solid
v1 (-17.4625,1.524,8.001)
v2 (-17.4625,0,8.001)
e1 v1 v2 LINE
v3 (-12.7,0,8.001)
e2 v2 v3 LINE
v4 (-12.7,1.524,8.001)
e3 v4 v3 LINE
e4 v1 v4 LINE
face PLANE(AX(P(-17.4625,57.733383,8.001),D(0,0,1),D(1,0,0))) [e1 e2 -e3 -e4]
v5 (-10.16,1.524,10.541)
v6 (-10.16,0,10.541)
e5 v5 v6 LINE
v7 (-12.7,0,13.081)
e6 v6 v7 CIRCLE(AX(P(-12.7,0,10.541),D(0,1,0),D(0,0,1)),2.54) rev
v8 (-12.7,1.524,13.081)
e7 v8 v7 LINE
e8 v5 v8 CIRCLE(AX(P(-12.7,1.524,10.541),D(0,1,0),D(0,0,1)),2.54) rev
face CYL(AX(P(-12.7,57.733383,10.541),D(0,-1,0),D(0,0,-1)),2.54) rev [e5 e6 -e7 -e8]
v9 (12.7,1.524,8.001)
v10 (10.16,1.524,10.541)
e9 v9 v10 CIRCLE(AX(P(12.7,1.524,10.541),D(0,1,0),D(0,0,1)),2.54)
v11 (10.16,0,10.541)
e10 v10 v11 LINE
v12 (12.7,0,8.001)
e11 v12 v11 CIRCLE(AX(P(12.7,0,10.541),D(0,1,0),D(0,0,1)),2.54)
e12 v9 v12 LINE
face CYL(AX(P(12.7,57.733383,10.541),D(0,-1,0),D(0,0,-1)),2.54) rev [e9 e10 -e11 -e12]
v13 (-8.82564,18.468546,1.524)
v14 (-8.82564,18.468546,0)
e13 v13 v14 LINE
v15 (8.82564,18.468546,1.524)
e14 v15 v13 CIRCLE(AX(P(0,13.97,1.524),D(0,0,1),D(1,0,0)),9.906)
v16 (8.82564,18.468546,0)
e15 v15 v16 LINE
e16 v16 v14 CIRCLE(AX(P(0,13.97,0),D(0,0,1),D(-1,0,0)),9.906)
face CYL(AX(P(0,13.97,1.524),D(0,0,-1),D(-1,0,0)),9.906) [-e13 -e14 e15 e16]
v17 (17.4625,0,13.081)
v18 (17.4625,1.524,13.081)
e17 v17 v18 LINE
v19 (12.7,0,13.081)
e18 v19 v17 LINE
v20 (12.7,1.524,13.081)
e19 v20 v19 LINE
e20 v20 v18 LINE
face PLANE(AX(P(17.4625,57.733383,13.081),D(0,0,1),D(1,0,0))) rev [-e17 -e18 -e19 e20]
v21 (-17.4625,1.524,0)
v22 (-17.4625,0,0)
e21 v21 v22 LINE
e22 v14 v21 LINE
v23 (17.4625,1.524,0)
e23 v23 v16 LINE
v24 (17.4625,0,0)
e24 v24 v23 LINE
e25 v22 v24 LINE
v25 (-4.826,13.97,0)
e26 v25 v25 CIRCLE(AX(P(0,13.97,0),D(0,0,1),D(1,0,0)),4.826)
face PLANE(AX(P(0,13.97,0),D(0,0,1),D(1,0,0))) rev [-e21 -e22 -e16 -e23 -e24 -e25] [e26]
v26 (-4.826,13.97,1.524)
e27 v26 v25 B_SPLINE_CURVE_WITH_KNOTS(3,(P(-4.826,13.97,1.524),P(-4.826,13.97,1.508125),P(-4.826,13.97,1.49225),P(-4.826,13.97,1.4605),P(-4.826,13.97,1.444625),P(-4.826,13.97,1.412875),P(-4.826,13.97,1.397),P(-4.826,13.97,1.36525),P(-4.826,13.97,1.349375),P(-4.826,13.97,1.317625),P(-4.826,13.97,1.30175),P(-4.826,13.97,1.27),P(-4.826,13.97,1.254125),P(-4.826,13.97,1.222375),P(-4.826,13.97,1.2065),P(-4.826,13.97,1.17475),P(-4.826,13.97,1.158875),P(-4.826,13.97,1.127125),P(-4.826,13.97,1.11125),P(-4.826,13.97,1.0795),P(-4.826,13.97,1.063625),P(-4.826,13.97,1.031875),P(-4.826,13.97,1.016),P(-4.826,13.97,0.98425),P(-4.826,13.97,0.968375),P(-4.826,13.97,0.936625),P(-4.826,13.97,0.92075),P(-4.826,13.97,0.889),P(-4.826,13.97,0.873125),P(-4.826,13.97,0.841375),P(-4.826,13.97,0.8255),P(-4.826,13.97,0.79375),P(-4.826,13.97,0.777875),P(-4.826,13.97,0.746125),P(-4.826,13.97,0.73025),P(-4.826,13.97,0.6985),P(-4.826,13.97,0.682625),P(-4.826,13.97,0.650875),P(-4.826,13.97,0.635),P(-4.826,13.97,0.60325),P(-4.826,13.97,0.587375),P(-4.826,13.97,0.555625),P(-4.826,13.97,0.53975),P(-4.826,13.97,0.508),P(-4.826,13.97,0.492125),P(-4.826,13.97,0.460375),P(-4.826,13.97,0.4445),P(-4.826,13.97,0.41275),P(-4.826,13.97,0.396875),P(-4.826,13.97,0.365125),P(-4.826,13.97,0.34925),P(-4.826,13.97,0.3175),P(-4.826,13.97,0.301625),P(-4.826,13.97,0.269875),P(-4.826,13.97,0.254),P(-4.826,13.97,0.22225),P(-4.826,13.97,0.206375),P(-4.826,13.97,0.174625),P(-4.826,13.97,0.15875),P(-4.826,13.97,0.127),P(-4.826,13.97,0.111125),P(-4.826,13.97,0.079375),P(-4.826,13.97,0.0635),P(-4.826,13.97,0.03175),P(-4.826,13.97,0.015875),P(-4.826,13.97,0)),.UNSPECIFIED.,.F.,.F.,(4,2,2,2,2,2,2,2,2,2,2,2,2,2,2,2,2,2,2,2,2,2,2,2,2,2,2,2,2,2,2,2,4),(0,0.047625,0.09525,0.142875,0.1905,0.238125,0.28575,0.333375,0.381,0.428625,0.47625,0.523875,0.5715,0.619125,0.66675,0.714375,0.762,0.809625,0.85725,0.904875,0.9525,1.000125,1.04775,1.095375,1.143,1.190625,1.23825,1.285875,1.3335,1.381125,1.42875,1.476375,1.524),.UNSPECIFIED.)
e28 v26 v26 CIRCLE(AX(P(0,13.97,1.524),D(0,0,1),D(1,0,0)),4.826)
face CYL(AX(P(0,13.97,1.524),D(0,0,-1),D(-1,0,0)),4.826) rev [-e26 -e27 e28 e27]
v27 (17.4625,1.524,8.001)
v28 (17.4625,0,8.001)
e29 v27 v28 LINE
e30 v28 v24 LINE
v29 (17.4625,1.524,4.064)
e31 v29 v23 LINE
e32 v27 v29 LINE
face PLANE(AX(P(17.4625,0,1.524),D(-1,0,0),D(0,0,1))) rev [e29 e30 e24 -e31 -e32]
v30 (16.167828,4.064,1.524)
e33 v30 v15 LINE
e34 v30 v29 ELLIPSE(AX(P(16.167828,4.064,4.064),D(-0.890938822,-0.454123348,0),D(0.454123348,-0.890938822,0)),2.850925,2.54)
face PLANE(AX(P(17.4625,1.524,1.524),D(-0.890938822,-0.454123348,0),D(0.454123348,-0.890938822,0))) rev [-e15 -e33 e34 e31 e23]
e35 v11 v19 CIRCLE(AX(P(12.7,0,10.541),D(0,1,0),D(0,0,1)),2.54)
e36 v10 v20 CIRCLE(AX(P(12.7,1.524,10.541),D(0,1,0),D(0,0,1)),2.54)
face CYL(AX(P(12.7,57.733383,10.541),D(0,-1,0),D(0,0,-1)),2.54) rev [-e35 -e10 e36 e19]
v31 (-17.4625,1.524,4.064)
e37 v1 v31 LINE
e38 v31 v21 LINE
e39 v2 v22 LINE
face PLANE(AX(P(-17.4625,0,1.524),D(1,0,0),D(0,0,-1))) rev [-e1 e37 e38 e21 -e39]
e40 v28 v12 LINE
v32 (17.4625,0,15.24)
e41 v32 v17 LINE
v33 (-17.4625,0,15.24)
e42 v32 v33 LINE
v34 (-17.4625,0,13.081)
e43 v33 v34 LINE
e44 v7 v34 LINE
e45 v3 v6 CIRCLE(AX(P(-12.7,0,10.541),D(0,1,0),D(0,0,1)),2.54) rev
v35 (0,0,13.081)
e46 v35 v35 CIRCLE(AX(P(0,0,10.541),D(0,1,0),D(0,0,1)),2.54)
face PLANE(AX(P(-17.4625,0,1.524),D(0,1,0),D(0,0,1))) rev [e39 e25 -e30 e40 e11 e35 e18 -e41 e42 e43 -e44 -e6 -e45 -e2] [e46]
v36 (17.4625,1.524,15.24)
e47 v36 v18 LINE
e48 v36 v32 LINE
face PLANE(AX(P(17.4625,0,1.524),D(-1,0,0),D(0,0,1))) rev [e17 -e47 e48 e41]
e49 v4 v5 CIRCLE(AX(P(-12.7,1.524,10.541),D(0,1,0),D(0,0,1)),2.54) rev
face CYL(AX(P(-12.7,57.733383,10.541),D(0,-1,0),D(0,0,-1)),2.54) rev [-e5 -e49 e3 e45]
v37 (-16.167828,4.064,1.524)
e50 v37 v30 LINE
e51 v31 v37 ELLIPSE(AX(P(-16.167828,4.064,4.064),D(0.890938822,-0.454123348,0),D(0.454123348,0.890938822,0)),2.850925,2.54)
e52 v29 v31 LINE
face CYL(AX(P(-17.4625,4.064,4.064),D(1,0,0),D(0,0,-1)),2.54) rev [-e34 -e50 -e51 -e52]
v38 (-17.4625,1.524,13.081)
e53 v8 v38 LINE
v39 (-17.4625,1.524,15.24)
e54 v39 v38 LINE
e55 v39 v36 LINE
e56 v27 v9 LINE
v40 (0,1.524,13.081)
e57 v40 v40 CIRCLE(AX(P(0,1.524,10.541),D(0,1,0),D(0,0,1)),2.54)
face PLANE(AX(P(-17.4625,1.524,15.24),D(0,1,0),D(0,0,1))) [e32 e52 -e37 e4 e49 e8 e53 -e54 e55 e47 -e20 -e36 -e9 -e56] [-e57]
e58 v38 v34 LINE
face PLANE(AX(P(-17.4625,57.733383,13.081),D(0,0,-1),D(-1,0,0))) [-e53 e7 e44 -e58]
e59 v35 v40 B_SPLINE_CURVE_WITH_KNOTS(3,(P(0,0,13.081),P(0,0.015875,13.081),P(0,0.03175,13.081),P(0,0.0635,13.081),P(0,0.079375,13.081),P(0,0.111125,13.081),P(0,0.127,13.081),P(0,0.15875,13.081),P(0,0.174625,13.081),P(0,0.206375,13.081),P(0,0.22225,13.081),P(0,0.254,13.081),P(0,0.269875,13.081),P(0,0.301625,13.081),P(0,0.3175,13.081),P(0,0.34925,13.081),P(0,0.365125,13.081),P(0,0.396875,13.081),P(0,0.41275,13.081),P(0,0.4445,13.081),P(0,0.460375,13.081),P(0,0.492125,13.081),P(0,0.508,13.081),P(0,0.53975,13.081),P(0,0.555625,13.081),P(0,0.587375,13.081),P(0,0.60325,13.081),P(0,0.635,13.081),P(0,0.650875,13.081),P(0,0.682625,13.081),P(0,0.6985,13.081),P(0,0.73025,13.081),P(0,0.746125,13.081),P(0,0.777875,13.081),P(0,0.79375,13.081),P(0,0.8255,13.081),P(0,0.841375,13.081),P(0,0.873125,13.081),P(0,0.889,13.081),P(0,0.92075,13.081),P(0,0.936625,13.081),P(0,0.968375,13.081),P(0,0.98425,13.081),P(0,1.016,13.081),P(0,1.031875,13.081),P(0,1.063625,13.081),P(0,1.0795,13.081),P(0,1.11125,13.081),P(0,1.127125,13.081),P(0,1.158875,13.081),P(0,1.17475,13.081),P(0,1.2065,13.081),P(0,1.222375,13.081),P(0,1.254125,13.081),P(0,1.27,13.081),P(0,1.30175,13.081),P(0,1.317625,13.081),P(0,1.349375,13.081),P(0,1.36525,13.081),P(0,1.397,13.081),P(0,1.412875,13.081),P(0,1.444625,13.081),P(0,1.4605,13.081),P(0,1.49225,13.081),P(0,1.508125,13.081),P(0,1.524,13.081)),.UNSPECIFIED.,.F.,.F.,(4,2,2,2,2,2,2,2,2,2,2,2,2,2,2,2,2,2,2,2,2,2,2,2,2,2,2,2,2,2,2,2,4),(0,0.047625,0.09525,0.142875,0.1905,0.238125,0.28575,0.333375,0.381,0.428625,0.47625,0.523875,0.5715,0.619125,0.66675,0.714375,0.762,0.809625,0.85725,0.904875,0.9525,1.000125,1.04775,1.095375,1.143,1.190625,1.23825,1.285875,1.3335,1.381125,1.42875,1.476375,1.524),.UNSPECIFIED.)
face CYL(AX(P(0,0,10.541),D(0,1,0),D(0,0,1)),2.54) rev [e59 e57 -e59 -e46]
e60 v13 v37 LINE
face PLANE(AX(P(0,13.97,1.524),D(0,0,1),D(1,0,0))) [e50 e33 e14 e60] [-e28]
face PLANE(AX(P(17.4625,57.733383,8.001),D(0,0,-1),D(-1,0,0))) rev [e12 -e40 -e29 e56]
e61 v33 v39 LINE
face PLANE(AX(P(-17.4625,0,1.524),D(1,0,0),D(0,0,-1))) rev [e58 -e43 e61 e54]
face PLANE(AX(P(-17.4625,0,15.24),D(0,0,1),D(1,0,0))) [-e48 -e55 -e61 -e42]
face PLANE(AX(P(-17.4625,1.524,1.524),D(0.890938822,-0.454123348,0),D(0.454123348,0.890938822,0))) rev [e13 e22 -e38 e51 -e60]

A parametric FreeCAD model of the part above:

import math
import FreeCAD as App
import Part
import Sketcher
from FreeCAD import Vector
Q = App.Units.Quantity


def edges_at(feature, points):
    """Names of the edges that pass closest to the given points."""
    edges = feature.Shape.Edges
    near = lambda p: min(range(len(edges)), key=lambda i: edges[i].distToShape(Part.Vertex(*p))[0])
    return sorted({f"Edge{near(p) + 1}" for p in points})

doc = App.newDocument("Part")
body = doc.addObject("PartDesign::Body", "Body")

sketch1 = doc.addObject("Sketcher::SketchObject", "Sketch")
body.addObject(sketch1)
sketch1.AttachmentSupport = (doc.XY_Plane, [""])
sketch1.MapMode = "FlatFace"
sketch1.addGeometry([
    Part.LineSegment(Vector(-17.5, 0, 0), Vector(17.5, 0, 0)),
    Part.LineSegment(Vector(17.5, 0, 0), Vector(17.5, 1.5, 0)),
    Part.LineSegment(Vector(17.5, 1.5, 0), Vector(8.8, 18.5, 0)),
    Part.ArcOfCircle(Part.Circle(Vector(0, 14, 0), Vector(0, 0, 1), 9.9), math.radians(27), math.radians(90)),
    Part.ArcOfCircle(Part.Circle(Vector(0, 14, 0), Vector(0, 0, 1), 9.9), math.radians(90), math.radians(153)),
    Part.LineSegment(Vector(-8.8, 18.5, 0), Vector(-17.5, 1.5, 0)),
    Part.LineSegment(Vector(-17.5, 1.5, 0), Vector(-17.5, 0, 0)),
    Part.Circle(Vector(0, 14, 0), Vector(0, 0, 1), 4.8),
], False)
sketch1.addConstraint([
    Sketcher.Constraint("Coincident", 0, 2, 1, 1),
    Sketcher.Constraint("Coincident", 1, 2, 2, 1),
    Sketcher.Constraint("Tangent", 2, 2, 3, 1),
    Sketcher.Constraint("Tangent", 3, 2, 4, 1),
    Sketcher.Constraint("Tangent", 4, 2, 5, 1),
    Sketcher.Constraint("Coincident", 5, 2, 6, 1),
    Sketcher.Constraint("Coincident", 6, 2, 0, 1),
    Sketcher.Constraint("Horizontal", 0),
    Sketcher.Constraint("Vertical", 1),
    Sketcher.Constraint("Vertical", 6),
    Sketcher.Constraint("Coincident", 7, 3, 3, 3),
    Sketcher.Constraint("Equal", 3, 4),
    Sketcher.Constraint("Symmetric", 0, 2, 6, 2, -1, 1),
    Sketcher.Constraint("Symmetric", 2, 2, 4, 2, -2),
    Sketcher.Constraint("PointOnObject", 3, 2, -2),
    Sketcher.Constraint("Diameter", 7, Q("0.38 in")),
    Sketcher.Constraint("Radius", 3, Q("0.39 in")),
    Sketcher.Constraint("DistanceY", 1, 1, 1, 2, Q("0.06 in")),
    Sketcher.Constraint("DistanceX", 0, 1, 0, 2, Q("1.375 in")),
    Sketcher.Constraint("DistanceY", -1, 1, 3, 3, Q("0.55 in")),
])
pad1 = doc.addObject("PartDesign::Pad", "Pad")
body.addObject(pad1)
pad1.Profile = sketch1
pad1.Length = Q("0.06 in")

sketch2 = doc.addObject("Sketcher::SketchObject", "Sketch001")
body.addObject(sketch2)
sketch2.AttachmentSupport = (doc.XY_Plane, [""])
sketch2.MapMode = "FlatFace"
sketch2.addGeometry([
    Part.LineSegment(Vector(17.5, 1.5, 0), Vector(17.5, 0, 0)),
    Part.LineSegment(Vector(17.5, 0, 0), Vector(-17.5, 0, 0)),
    Part.LineSegment(Vector(-17.5, 0, 0), Vector(-17.5, 1.5, 0)),
    Part.LineSegment(Vector(-17.5, 1.5, 0), Vector(17.5, 1.5, 0)),
], False)
sketch2.addConstraint([
    Sketcher.Constraint("Coincident", 0, 2, 1, 1),
    Sketcher.Constraint("Coincident", 1, 2, 2, 1),
    Sketcher.Constraint("Coincident", 2, 2, 3, 1),
    Sketcher.Constraint("Coincident", 3, 2, 0, 1),
    Sketcher.Constraint("Vertical", 0),
    Sketcher.Constraint("Horizontal", 1),
    Sketcher.Constraint("Vertical", 2),
    Sketcher.Constraint("Horizontal", 3),
    Sketcher.Constraint("Symmetric", 0, 2, 1, 2, -1, 1),
    Sketcher.Constraint("DistanceY", 0, 2, 0, 1, Q("0.06 in")),
    Sketcher.Constraint("DistanceX", 1, 2, 1, 1, Q("1.375 in")),
])
pad2 = doc.addObject("PartDesign::Pad", "Pad001")
body.addObject(pad2)
pad2.Profile = sketch2
pad2.Length = Q("0.6 in")

sketch3 = doc.addObject("Sketcher::SketchObject", "Sketch002")
body.addObject(sketch3)
sketch3.AttachmentSupport = (doc.XZ_Plane, [""])
sketch3.MapMode = "FlatFace"
sketch3.AttachmentOffset = App.Placement(Vector(0, 0, -0.06 * 25.4), App.Rotation())
sketch3.addGeometry(Part.Circle(Vector(0, 10.5, 0), Vector(0, 0, 1), 2.5), False)
sketch3.addConstraint([
    Sketcher.Constraint("PointOnObject", 0, 3, -2),
    Sketcher.Constraint("Diameter", 0, Q("0.2 in")),
    Sketcher.Constraint("DistanceY", -1, 1, 0, 3, Q("0.415 in")),
])
pocket1 = doc.addObject("PartDesign::Pocket", "Pocket")
body.addObject(pocket1)
pocket1.Profile = sketch3
pocket1.Type = "ThroughAll"
pocket1.Reversed = True

sketch4 = doc.addObject("Sketcher::SketchObject", "Sketch003")
body.addObject(sketch4)
sketch4.AttachmentSupport = (doc.XZ_Plane, [""])
sketch4.MapMode = "FlatFace"
sketch4.AttachmentOffset = App.Placement(Vector(0, 0, -0.06 * 25.4), App.Rotation())
sketch4.addGeometry([
    Part.LineSegment(Vector(-12.7, 8, 0), Vector(-17.5, 8, 0)),
    Part.LineSegment(Vector(-17.5, 8, 0), Vector(-17.5, 13.1, 0)),
    Part.LineSegment(Vector(-17.5, 13.1, 0), Vector(-12.7, 13.1, 0)),
    Part.ArcOfCircle(Part.Circle(Vector(-12.7, 10.5, 0), Vector(0, 0, 1), 2.5), math.radians(0), math.radians(90)),
    Part.ArcOfCircle(Part.Circle(Vector(-12.7, 10.5, 0), Vector(0, 0, 1), 2.5), math.radians(-90), math.radians(0)),
], False)
sketch4.addConstraint([
    Sketcher.Constraint("Coincident", 0, 2, 1, 1),
    Sketcher.Constraint("Coincident", 1, 2, 2, 1),
    Sketcher.Constraint("Tangent", 2, 2, 3, 2),
    Sketcher.Constraint("Tangent", 3, 1, 4, 2),
    Sketcher.Constraint("Tangent", 4, 1, 0, 1),
    Sketcher.Constraint("Horizontal", 0),
    Sketcher.Constraint("Vertical", 1),
    Sketcher.Constraint("Horizontal", 2),
    Sketcher.Constraint("Equal", 3, 4),
    Sketcher.Constraint("Horizontal", 4, 3, 3, 1),
    Sketcher.Constraint("Radius", 3, Q("0.1 in")),
    Sketcher.Constraint("DistanceX", 3, 3, -1, 1, Q("0.5 in")),
    Sketcher.Constraint("DistanceX", 0, 2, 0, 1, Q("0.1875 in")),
    Sketcher.Constraint("DistanceY", -1, 1, 3, 3, Q("0.415 in")),
])
pocket2 = doc.addObject("PartDesign::Pocket", "Pocket001")
body.addObject(pocket2)
pocket2.Profile = sketch4
pocket2.Type = "ThroughAll"
pocket2.Midplane = True
doc.recompute()

mirrored = doc.addObject("PartDesign::Mirrored", "Mirrored")
body.addObject(mirrored)
mirrored.Originals = [pocket2]
mirrored.MirrorPlane = (doc.YZ_Plane, [""])
body.Tip = mirrored
doc.recompute()

fillet = doc.addObject("PartDesign::Fillet", "Fillet")
body.addObject(fillet)
fillet.Base = (mirrored, edges_at(mirrored, [(0, 1.524, 1.524)]))
fillet.Radius = Q("0.1 in")

doc.recompute()
